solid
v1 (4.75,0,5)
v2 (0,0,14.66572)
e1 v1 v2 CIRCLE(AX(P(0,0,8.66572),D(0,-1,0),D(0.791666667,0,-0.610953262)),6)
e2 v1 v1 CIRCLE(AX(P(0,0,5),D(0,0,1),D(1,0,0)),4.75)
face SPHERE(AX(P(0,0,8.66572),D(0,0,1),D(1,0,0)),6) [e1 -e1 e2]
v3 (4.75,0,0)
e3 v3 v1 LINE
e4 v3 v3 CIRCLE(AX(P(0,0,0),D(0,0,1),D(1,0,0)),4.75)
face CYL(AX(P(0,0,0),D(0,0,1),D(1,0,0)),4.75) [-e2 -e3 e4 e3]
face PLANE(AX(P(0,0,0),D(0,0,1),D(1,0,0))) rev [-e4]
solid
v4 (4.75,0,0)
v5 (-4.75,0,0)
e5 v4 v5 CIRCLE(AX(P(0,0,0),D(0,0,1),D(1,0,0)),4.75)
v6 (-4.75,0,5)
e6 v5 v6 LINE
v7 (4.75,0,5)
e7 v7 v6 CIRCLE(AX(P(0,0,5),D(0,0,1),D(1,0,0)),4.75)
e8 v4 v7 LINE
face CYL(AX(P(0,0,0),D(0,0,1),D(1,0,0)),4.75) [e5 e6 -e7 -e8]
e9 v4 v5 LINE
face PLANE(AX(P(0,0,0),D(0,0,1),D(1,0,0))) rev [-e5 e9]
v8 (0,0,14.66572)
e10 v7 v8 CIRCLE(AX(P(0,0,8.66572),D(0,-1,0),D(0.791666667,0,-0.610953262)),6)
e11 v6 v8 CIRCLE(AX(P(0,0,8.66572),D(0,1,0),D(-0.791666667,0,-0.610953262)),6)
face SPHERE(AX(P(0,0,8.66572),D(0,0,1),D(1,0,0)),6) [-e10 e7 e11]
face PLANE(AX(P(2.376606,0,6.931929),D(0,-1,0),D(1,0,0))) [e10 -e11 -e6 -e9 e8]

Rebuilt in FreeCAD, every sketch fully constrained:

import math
import FreeCAD as App
import Part
import Sketcher

doc = App.newDocument("Part")
body = doc.addObject("PartDesign::Body", "Body")

sketch1 = doc.addObject("Sketcher::SketchObject", "Sketch")
body.addObject(sketch1)
sketch1.AttachmentSupport = (doc.XZ_Plane, [""])
sketch1.MapMode = "FlatFace"
sketch1.addGeometry([
    Part.LineSegment(App.Vector(0, 14.66572, 0), App.Vector(0, 0, 0)),
    Part.LineSegment(App.Vector(0, 0, 0), App.Vector(4.75, 0, 0)),
    Part.LineSegment(App.Vector(4.75, 0, 0), App.Vector(4.75, 5, 0)),
    Part.ArcOfCircle(Part.Circle(App.Vector(0, 8.66572, 0), App.Vector(0, 0, 1), 6), math.radians(-37.658462), math.radians(90)),
], False)
sketch1.addConstraint([
    Sketcher.Constraint("Coincident", 0, 2, 1, 1),
    Sketcher.Constraint("Coincident", 1, 2, 2, 1),
    Sketcher.Constraint("Coincident", 2, 2, 3, 1),
    Sketcher.Constraint("Coincident", 3, 2, 0, 1),
    Sketcher.Constraint("Vertical", 0),
    Sketcher.Constraint("Horizontal", 1),
    Sketcher.Constraint("Vertical", 2),
    Sketcher.Constraint("Coincident", 0, 2, -1, 1),
    Sketcher.Constraint("PointOnObject", 3, 3, -2),
    Sketcher.Constraint("Radius", 3, 6.0),
    Sketcher.Constraint("DistanceY", 2, 1, 2, 2, 5.0),
    Sketcher.Constraint("DistanceX", 1, 1, 1, 2, 4.75),
])
revolution = doc.addObject("PartDesign::Revolution", "Revolution")
body.addObject(revolution)
revolution.Profile = sketch1
revolution.ReferenceAxis = (sketch1, ["V_Axis"])
revolution.Angle = 360
body2 = doc.addObject("PartDesign::Body", "Body001")

sketch2 = doc.addObject("Sketcher::SketchObject", "Sketch001")
body2.addObject(sketch2)
sketch2.AttachmentSupport = (doc.getObject("XZ_Plane001"), [""])
sketch2.MapMode = "FlatFace"
sketch2.addGeometry([
    Part.LineSegment(App.Vector(0, 14.66572, 0), App.Vector(0, 0, 0)),
    Part.LineSegment(App.Vector(0, 0, 0), App.Vector(4.75, 0, 0)),
    Part.LineSegment(App.Vector(4.75, 0, 0), App.Vector(4.75, 5, 0)),
    Part.ArcOfCircle(Part.Circle(App.Vector(0, 8.66572, 0), App.Vector(0, 0, 1), 6), math.radians(-37.658462), math.radians(90)),
], False)
sketch2.addConstraint([
    Sketcher.Constraint("Coincident", 0, 2, 1, 1),
    Sketcher.Constraint("Coincident", 1, 2, 2, 1),
    Sketcher.Constraint("Coincident", 2, 2, 3, 1),
    Sketcher.Constraint("Coincident", 3, 2, 0, 1),
    Sketcher.Constraint("Vertical", 0),
    Sketcher.Constraint("Horizontal", 1),
    Sketcher.Constraint("Vertical", 2),
    Sketcher.Constraint("Coincident", 0, 2, -1, 1),
    Sketcher.Constraint("PointOnObject", 3, 3, -2),
    Sketcher.Constraint("Radius", 3, 6.0),
    Sketcher.Constraint("DistanceY", 2, 1, 2, 2, 5.0),
    Sketcher.Constraint("DistanceX", 1, 1, 1, 2, 4.75),
])
revolution2 = doc.addObject("PartDesign::Revolution", "Revolution001")
body2.addObject(revolution2)
revolution2.Profile = sketch2
revolution2.ReferenceAxis = (sketch2, ["V_Axis"])
revolution2.Angle = 180

doc.recompute()
